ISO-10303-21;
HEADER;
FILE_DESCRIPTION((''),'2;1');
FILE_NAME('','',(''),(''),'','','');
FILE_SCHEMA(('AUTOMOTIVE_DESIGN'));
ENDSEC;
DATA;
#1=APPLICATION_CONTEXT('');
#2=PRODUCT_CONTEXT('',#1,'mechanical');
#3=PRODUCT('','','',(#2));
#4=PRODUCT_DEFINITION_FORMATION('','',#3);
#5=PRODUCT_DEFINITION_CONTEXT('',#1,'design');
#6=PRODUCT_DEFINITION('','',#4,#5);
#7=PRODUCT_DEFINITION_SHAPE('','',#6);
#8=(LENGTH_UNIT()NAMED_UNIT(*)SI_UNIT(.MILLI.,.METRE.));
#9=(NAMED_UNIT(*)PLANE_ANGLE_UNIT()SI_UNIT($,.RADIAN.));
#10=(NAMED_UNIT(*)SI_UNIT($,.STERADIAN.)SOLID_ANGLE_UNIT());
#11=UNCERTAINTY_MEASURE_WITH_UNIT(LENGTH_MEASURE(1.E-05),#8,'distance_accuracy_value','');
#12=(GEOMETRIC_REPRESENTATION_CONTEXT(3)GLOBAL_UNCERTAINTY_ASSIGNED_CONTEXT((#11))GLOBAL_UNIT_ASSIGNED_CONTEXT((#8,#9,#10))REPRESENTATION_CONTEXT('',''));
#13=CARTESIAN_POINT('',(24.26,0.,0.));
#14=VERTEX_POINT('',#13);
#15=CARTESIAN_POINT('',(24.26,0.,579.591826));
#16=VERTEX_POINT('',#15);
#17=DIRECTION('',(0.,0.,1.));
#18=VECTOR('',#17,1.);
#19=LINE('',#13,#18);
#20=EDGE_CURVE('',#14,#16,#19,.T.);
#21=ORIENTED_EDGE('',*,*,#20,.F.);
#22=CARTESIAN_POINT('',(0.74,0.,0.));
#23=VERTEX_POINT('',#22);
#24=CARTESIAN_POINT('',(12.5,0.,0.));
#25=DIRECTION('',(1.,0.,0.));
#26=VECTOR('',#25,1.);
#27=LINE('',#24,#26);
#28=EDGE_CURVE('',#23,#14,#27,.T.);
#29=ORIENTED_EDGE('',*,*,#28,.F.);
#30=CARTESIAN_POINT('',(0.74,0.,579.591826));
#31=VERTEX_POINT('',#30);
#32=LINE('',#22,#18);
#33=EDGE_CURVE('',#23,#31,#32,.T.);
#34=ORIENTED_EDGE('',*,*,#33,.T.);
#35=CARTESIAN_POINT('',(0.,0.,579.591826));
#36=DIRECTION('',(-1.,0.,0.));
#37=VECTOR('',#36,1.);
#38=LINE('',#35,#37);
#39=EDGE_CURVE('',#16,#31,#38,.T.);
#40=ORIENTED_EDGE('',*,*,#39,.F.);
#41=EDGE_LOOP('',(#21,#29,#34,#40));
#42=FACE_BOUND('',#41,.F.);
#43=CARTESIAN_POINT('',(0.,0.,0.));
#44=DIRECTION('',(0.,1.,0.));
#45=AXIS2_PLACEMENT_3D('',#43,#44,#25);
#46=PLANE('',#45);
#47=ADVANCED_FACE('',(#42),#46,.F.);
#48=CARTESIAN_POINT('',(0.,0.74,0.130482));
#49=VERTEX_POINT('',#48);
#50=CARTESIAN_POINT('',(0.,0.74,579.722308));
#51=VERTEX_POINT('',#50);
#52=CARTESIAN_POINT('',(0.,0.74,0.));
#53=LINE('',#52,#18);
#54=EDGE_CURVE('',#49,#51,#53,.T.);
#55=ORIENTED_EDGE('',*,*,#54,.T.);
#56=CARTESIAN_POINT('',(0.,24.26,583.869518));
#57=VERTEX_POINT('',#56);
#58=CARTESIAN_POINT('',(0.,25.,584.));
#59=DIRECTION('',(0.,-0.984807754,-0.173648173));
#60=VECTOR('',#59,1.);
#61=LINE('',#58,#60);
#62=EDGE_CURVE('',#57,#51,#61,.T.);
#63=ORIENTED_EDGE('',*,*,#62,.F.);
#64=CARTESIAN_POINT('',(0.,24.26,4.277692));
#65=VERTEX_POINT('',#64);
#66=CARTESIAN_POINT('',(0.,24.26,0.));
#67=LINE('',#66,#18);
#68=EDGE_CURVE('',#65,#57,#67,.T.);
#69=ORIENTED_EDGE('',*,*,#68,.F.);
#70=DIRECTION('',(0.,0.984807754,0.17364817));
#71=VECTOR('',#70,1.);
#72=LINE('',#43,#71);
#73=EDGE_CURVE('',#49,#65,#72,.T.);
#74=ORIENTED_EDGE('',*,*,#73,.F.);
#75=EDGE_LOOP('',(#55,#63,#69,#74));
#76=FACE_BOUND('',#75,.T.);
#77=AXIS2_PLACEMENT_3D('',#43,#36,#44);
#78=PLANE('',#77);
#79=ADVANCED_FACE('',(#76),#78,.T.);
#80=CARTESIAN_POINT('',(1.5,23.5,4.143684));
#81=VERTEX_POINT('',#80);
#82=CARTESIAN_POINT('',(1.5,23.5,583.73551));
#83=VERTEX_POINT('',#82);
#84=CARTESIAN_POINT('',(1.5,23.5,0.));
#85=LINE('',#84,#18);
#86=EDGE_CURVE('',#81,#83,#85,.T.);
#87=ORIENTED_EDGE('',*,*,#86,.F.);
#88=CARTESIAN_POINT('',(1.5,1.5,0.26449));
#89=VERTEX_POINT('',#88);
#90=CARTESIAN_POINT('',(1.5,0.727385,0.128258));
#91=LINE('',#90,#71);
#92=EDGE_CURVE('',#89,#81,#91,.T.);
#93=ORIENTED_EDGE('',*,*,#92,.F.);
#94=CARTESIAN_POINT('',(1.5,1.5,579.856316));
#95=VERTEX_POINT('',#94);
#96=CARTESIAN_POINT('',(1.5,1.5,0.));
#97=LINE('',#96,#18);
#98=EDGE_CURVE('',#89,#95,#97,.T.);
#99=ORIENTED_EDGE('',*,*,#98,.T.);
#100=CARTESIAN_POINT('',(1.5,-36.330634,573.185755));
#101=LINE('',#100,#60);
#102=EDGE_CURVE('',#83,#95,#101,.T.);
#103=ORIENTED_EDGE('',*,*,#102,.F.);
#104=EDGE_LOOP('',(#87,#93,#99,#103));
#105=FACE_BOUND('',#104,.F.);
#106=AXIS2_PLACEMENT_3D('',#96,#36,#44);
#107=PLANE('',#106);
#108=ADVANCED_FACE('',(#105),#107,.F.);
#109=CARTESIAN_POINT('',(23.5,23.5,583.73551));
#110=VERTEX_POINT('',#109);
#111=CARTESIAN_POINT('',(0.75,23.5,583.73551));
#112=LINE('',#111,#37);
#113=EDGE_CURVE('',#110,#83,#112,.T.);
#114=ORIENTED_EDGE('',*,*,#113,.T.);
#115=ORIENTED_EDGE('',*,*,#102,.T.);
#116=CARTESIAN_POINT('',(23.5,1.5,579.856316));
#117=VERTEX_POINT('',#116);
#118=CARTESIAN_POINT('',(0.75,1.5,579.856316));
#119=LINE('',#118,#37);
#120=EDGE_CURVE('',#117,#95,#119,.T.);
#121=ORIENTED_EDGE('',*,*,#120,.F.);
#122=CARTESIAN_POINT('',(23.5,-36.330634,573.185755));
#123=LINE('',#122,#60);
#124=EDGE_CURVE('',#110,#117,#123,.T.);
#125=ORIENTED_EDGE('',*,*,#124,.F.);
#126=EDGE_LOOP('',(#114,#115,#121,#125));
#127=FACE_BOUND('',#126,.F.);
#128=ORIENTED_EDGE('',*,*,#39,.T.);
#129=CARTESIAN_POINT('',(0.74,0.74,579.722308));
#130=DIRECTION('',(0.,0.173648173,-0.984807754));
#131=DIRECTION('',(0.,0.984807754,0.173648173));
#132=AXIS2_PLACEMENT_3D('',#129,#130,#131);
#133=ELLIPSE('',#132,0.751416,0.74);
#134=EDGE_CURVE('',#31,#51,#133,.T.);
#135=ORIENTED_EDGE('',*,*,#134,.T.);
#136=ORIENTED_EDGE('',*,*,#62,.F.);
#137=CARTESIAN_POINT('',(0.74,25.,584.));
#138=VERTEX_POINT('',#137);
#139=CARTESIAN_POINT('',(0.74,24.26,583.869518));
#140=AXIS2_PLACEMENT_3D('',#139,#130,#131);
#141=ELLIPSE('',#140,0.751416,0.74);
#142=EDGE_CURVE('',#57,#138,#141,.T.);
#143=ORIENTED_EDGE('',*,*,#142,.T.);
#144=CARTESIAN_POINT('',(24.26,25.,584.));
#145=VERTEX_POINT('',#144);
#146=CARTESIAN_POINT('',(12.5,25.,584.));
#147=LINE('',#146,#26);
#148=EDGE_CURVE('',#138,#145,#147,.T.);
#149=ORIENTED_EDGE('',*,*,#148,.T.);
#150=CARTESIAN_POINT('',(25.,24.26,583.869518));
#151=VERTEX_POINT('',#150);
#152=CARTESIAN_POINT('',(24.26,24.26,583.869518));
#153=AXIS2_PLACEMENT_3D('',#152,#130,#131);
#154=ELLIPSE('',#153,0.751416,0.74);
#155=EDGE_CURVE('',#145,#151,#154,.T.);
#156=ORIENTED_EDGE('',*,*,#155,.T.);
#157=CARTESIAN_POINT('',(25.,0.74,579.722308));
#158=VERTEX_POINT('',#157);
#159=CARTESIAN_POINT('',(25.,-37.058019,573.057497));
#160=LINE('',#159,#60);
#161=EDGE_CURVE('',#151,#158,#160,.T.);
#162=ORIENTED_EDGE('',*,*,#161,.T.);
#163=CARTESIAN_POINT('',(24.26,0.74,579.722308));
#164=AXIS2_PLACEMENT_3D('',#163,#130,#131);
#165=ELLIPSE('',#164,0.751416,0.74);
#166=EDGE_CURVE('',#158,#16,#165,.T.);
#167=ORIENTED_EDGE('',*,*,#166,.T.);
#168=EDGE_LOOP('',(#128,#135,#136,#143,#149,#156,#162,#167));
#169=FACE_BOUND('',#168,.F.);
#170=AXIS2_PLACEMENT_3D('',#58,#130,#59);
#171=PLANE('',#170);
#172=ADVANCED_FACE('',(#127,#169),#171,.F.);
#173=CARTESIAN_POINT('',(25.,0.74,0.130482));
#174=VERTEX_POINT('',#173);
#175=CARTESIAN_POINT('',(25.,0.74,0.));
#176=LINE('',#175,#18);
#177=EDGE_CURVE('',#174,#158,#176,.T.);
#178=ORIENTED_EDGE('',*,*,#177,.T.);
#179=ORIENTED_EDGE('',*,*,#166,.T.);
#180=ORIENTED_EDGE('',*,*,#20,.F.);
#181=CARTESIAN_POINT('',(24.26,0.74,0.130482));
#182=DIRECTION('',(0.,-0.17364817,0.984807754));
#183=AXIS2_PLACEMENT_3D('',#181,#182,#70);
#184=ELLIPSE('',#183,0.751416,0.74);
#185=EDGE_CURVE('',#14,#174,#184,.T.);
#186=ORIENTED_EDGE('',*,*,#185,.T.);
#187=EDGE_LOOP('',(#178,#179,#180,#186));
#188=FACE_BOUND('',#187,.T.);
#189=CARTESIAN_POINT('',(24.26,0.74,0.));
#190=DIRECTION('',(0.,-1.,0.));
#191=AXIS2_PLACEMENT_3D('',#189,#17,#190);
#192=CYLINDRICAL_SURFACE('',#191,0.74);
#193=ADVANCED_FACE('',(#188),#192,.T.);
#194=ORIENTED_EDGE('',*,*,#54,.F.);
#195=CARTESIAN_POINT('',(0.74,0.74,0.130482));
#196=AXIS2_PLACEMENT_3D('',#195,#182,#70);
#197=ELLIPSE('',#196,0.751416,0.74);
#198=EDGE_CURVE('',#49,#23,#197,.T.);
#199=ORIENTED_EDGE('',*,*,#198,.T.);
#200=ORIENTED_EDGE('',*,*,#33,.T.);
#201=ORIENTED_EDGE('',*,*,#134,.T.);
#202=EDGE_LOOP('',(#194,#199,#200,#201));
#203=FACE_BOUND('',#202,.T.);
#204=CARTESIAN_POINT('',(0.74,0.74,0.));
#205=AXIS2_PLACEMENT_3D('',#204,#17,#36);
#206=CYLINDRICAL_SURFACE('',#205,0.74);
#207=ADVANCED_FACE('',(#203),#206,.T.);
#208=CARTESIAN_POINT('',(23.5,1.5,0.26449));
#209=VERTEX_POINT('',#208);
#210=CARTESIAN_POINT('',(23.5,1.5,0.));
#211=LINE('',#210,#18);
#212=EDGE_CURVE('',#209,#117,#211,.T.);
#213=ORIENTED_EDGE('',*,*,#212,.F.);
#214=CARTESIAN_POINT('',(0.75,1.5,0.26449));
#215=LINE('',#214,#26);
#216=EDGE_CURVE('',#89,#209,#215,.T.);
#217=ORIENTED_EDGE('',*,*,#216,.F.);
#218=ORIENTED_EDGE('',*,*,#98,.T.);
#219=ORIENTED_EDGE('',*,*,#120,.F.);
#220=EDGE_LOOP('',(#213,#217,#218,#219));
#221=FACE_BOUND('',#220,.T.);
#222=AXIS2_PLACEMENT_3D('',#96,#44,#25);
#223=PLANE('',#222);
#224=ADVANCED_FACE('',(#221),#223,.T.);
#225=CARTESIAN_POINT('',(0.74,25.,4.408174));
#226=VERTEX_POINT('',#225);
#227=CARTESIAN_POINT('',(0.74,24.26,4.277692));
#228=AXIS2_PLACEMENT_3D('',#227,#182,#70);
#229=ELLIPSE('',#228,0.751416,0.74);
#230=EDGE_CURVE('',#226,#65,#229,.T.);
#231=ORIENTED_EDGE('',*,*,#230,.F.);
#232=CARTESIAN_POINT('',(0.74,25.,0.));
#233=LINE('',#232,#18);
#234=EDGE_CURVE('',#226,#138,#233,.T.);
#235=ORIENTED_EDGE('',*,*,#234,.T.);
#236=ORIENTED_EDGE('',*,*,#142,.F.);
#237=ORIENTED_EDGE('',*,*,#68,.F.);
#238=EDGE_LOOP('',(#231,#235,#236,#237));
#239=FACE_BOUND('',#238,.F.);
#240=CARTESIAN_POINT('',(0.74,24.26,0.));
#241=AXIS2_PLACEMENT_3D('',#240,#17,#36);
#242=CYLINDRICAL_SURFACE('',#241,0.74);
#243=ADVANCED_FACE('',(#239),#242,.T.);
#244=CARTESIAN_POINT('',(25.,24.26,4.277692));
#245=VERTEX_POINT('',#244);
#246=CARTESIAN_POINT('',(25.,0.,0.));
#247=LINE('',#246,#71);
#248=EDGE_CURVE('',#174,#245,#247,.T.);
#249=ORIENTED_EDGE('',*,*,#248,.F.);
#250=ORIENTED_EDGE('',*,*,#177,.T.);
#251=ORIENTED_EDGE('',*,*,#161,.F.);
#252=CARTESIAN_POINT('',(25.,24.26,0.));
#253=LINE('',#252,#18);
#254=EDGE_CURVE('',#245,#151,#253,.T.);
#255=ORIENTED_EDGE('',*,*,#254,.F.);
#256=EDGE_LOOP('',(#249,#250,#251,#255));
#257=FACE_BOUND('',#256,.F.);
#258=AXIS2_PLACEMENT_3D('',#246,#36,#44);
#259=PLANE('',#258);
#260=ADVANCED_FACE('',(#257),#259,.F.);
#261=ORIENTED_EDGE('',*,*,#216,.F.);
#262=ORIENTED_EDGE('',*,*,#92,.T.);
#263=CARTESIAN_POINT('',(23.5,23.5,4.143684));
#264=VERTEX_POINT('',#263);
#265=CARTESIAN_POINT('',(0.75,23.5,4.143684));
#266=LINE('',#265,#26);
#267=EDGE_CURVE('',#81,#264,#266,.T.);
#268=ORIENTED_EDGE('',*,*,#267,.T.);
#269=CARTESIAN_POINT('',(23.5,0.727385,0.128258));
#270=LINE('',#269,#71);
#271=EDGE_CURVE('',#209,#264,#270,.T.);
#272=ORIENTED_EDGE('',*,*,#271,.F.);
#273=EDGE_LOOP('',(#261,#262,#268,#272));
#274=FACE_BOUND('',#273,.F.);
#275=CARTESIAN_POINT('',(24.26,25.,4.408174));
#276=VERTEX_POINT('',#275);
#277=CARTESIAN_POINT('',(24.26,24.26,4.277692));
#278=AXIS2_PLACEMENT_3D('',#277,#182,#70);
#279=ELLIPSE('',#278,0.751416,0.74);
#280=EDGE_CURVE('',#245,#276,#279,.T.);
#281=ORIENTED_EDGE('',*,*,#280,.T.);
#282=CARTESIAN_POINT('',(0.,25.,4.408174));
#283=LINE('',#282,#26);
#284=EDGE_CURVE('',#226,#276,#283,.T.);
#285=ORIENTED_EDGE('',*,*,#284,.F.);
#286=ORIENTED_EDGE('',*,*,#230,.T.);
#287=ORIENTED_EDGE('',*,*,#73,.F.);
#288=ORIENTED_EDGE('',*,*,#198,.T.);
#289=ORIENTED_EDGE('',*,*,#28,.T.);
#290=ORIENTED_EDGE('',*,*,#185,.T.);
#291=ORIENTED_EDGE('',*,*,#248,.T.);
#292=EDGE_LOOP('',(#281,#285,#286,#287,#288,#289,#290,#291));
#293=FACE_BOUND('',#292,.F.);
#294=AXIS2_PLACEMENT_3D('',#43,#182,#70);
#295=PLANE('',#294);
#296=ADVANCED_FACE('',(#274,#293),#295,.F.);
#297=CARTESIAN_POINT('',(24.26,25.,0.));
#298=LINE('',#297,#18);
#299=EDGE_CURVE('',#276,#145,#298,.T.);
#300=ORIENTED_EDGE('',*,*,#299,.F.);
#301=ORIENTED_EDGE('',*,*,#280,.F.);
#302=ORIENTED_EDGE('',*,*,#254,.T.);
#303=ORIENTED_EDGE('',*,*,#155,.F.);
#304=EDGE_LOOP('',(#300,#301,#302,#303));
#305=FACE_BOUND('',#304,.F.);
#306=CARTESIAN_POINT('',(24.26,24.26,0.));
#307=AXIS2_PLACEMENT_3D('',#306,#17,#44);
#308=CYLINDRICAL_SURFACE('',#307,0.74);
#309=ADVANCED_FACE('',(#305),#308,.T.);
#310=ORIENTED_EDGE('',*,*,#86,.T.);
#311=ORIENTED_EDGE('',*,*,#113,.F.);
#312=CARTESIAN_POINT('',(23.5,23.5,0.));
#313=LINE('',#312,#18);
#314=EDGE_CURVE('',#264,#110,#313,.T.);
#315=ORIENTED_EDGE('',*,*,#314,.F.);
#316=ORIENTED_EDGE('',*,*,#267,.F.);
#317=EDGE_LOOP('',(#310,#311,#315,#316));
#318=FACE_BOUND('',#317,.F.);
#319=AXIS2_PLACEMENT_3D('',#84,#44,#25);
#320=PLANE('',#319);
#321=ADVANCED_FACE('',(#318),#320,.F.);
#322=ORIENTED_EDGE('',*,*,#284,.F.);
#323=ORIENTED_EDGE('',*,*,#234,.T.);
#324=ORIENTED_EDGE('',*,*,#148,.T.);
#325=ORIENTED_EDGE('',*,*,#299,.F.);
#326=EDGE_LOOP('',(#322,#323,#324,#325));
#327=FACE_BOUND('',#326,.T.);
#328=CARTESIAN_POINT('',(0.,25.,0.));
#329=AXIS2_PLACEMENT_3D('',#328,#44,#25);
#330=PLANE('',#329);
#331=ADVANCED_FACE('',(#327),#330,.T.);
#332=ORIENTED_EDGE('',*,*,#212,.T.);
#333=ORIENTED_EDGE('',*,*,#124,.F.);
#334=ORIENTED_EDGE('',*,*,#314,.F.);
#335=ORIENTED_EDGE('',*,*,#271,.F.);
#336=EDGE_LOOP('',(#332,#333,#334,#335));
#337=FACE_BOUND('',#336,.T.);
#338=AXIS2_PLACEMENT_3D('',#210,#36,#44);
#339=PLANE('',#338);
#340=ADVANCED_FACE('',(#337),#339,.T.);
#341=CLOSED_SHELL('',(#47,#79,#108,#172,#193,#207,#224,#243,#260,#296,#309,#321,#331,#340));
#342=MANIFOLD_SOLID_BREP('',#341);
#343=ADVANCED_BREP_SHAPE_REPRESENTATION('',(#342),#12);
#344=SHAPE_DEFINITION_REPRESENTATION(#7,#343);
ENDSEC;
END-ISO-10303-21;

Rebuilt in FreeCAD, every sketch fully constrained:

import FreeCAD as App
import Part
import Sketcher

V = App.Vector
Q = App.Units.Quantity


def edges_at(feature, points):
    """Names of the edges that pass closest to the given points."""
    edges = feature.Shape.Edges
    near = lambda p: min(range(len(edges)), key=lambda i: edges[i].distToShape(Part.Vertex(*p))[0])
    return sorted({f"Edge{near(p) + 1}" for p in points})


def add_polygon(sketch, points):
    """Adds a closed chain of lines whose ends are joined by coincident constraints."""
    first, n = sketch.GeometryCount, len(points)
    for a, b in zip(points, points[1:] + points[:1]):
        sketch.addGeometry(Part.LineSegment(App.Vector(*a, 0), App.Vector(*b, 0)), False)
    for i in range(n):
        sketch.addConstraint(Sketcher.Constraint("Coincident", first + i, 2, first + (i + 1) % n, 1))

doc = App.newDocument("Part")
body = doc.addObject("PartDesign::Body", "Body")

# Sketch on XY plane
sketch1 = body.newObject("Sketcher::SketchObject", "Sketch")
sketch1.AttachmentSupport = (doc.getObject("XY_Plane"), [""])
sketch1.MapMode = "FlatFace"
add_polygon(sketch1, [(0, 25), (0, 0), (25, 0), (25, 25)])  # lines 0-3
add_polygon(sketch1, [(24, 2), (2, 2), (2, 24), (24, 24)])  # lines 4-7
sketch1.addConstraint([
    Sketcher.Constraint("Vertical", 0),
    Sketcher.Constraint("Horizontal", 1),
    Sketcher.Constraint("Vertical", 2),
    Sketcher.Constraint("Horizontal", 3),
    Sketcher.Constraint("Horizontal", 4),
    Sketcher.Constraint("Vertical", 5),
    Sketcher.Constraint("Horizontal", 6),
    Sketcher.Constraint("Vertical", 7),
    Sketcher.Constraint("Coincident", 0, 2, -1, 1),
    Sketcher.Constraint("Equal", 3, 0),
    Sketcher.Constraint("Equal", 6, 5),
    Sketcher.Constraint("DistanceX", 1, 1, 1, 2, Q("25 mm")),
    Sketcher.Constraint("DistanceX", 4, 2, 4, 1, Q("22 mm")),
    Sketcher.Constraint("DistanceX", -1, 1, 4, 2, Q("1.5 mm")),
    Sketcher.Constraint("DistanceY", -1, 1, 4, 2, Q("1.5 mm")),
])
pad1 = body.newObject("PartDesign::Pad", "Pad")
pad1.Profile = sketch1
pad1.Length = 584
doc.recompute()

fillet = body.newObject("PartDesign::Fillet", "Fillet")
fillet.Base = (pad1, edges_at(pad1, [
    (25, 0, 292),
    (0, 0, 292),
    (25, 25, 292),
    (0, 25, 292),
]))
fillet.Radius = 0.74

# Sketch on YZ plane
sketch2 = body.newObject("Sketcher::SketchObject", "Sketch001")
sketch2.AttachmentSupport = (doc.getObject("YZ_Plane"), [""])
sketch2.MapMode = "FlatFace"
add_polygon(sketch2, [(0, 0), (42, 7), (25, -14)])  # lines 0-2
add_polygon(sketch2, [(25, 584), (-32, 574), (-24, 600)])  # lines 3-5
sketch2.addConstraint([
    Sketcher.Constraint("Coincident", 2, 2, -1, 1),
    Sketcher.Constraint("Parallel", 0, 3),
    Sketcher.Constraint("Angle", 0, Q("10 deg")),
    Sketcher.Constraint("DistanceX", -1, 1, 5, 2, Q("25 mm")),
    Sketcher.Constraint("DistanceY", -1, 1, 5, 2, Q("584 mm")),
    Sketcher.Constraint("DistanceX", -1, 1, 1, 2, Q("25.0585 mm")),
    Sketcher.Constraint("DistanceY", -1, 1, 3, 2, Q("573.9842 mm")),
    Sketcher.Constraint("DistanceX", 4, 2, 0, 2, Q("66.519701 mm")),
    Sketcher.Constraint("Distance", 0, Q("42.95842 mm")),
    Sketcher.Constraint("Distance", 1, Q("27.910111 mm")),
    Sketcher.Constraint("Distance", 4, Q("27.476839 mm")),
])
pocket1 = body.newObject("PartDesign::Pocket", "Pocket")
pocket1.Profile = sketch2
pocket1.Type = "ThroughAll"
pocket1.Reversed = True

doc.recompute()
